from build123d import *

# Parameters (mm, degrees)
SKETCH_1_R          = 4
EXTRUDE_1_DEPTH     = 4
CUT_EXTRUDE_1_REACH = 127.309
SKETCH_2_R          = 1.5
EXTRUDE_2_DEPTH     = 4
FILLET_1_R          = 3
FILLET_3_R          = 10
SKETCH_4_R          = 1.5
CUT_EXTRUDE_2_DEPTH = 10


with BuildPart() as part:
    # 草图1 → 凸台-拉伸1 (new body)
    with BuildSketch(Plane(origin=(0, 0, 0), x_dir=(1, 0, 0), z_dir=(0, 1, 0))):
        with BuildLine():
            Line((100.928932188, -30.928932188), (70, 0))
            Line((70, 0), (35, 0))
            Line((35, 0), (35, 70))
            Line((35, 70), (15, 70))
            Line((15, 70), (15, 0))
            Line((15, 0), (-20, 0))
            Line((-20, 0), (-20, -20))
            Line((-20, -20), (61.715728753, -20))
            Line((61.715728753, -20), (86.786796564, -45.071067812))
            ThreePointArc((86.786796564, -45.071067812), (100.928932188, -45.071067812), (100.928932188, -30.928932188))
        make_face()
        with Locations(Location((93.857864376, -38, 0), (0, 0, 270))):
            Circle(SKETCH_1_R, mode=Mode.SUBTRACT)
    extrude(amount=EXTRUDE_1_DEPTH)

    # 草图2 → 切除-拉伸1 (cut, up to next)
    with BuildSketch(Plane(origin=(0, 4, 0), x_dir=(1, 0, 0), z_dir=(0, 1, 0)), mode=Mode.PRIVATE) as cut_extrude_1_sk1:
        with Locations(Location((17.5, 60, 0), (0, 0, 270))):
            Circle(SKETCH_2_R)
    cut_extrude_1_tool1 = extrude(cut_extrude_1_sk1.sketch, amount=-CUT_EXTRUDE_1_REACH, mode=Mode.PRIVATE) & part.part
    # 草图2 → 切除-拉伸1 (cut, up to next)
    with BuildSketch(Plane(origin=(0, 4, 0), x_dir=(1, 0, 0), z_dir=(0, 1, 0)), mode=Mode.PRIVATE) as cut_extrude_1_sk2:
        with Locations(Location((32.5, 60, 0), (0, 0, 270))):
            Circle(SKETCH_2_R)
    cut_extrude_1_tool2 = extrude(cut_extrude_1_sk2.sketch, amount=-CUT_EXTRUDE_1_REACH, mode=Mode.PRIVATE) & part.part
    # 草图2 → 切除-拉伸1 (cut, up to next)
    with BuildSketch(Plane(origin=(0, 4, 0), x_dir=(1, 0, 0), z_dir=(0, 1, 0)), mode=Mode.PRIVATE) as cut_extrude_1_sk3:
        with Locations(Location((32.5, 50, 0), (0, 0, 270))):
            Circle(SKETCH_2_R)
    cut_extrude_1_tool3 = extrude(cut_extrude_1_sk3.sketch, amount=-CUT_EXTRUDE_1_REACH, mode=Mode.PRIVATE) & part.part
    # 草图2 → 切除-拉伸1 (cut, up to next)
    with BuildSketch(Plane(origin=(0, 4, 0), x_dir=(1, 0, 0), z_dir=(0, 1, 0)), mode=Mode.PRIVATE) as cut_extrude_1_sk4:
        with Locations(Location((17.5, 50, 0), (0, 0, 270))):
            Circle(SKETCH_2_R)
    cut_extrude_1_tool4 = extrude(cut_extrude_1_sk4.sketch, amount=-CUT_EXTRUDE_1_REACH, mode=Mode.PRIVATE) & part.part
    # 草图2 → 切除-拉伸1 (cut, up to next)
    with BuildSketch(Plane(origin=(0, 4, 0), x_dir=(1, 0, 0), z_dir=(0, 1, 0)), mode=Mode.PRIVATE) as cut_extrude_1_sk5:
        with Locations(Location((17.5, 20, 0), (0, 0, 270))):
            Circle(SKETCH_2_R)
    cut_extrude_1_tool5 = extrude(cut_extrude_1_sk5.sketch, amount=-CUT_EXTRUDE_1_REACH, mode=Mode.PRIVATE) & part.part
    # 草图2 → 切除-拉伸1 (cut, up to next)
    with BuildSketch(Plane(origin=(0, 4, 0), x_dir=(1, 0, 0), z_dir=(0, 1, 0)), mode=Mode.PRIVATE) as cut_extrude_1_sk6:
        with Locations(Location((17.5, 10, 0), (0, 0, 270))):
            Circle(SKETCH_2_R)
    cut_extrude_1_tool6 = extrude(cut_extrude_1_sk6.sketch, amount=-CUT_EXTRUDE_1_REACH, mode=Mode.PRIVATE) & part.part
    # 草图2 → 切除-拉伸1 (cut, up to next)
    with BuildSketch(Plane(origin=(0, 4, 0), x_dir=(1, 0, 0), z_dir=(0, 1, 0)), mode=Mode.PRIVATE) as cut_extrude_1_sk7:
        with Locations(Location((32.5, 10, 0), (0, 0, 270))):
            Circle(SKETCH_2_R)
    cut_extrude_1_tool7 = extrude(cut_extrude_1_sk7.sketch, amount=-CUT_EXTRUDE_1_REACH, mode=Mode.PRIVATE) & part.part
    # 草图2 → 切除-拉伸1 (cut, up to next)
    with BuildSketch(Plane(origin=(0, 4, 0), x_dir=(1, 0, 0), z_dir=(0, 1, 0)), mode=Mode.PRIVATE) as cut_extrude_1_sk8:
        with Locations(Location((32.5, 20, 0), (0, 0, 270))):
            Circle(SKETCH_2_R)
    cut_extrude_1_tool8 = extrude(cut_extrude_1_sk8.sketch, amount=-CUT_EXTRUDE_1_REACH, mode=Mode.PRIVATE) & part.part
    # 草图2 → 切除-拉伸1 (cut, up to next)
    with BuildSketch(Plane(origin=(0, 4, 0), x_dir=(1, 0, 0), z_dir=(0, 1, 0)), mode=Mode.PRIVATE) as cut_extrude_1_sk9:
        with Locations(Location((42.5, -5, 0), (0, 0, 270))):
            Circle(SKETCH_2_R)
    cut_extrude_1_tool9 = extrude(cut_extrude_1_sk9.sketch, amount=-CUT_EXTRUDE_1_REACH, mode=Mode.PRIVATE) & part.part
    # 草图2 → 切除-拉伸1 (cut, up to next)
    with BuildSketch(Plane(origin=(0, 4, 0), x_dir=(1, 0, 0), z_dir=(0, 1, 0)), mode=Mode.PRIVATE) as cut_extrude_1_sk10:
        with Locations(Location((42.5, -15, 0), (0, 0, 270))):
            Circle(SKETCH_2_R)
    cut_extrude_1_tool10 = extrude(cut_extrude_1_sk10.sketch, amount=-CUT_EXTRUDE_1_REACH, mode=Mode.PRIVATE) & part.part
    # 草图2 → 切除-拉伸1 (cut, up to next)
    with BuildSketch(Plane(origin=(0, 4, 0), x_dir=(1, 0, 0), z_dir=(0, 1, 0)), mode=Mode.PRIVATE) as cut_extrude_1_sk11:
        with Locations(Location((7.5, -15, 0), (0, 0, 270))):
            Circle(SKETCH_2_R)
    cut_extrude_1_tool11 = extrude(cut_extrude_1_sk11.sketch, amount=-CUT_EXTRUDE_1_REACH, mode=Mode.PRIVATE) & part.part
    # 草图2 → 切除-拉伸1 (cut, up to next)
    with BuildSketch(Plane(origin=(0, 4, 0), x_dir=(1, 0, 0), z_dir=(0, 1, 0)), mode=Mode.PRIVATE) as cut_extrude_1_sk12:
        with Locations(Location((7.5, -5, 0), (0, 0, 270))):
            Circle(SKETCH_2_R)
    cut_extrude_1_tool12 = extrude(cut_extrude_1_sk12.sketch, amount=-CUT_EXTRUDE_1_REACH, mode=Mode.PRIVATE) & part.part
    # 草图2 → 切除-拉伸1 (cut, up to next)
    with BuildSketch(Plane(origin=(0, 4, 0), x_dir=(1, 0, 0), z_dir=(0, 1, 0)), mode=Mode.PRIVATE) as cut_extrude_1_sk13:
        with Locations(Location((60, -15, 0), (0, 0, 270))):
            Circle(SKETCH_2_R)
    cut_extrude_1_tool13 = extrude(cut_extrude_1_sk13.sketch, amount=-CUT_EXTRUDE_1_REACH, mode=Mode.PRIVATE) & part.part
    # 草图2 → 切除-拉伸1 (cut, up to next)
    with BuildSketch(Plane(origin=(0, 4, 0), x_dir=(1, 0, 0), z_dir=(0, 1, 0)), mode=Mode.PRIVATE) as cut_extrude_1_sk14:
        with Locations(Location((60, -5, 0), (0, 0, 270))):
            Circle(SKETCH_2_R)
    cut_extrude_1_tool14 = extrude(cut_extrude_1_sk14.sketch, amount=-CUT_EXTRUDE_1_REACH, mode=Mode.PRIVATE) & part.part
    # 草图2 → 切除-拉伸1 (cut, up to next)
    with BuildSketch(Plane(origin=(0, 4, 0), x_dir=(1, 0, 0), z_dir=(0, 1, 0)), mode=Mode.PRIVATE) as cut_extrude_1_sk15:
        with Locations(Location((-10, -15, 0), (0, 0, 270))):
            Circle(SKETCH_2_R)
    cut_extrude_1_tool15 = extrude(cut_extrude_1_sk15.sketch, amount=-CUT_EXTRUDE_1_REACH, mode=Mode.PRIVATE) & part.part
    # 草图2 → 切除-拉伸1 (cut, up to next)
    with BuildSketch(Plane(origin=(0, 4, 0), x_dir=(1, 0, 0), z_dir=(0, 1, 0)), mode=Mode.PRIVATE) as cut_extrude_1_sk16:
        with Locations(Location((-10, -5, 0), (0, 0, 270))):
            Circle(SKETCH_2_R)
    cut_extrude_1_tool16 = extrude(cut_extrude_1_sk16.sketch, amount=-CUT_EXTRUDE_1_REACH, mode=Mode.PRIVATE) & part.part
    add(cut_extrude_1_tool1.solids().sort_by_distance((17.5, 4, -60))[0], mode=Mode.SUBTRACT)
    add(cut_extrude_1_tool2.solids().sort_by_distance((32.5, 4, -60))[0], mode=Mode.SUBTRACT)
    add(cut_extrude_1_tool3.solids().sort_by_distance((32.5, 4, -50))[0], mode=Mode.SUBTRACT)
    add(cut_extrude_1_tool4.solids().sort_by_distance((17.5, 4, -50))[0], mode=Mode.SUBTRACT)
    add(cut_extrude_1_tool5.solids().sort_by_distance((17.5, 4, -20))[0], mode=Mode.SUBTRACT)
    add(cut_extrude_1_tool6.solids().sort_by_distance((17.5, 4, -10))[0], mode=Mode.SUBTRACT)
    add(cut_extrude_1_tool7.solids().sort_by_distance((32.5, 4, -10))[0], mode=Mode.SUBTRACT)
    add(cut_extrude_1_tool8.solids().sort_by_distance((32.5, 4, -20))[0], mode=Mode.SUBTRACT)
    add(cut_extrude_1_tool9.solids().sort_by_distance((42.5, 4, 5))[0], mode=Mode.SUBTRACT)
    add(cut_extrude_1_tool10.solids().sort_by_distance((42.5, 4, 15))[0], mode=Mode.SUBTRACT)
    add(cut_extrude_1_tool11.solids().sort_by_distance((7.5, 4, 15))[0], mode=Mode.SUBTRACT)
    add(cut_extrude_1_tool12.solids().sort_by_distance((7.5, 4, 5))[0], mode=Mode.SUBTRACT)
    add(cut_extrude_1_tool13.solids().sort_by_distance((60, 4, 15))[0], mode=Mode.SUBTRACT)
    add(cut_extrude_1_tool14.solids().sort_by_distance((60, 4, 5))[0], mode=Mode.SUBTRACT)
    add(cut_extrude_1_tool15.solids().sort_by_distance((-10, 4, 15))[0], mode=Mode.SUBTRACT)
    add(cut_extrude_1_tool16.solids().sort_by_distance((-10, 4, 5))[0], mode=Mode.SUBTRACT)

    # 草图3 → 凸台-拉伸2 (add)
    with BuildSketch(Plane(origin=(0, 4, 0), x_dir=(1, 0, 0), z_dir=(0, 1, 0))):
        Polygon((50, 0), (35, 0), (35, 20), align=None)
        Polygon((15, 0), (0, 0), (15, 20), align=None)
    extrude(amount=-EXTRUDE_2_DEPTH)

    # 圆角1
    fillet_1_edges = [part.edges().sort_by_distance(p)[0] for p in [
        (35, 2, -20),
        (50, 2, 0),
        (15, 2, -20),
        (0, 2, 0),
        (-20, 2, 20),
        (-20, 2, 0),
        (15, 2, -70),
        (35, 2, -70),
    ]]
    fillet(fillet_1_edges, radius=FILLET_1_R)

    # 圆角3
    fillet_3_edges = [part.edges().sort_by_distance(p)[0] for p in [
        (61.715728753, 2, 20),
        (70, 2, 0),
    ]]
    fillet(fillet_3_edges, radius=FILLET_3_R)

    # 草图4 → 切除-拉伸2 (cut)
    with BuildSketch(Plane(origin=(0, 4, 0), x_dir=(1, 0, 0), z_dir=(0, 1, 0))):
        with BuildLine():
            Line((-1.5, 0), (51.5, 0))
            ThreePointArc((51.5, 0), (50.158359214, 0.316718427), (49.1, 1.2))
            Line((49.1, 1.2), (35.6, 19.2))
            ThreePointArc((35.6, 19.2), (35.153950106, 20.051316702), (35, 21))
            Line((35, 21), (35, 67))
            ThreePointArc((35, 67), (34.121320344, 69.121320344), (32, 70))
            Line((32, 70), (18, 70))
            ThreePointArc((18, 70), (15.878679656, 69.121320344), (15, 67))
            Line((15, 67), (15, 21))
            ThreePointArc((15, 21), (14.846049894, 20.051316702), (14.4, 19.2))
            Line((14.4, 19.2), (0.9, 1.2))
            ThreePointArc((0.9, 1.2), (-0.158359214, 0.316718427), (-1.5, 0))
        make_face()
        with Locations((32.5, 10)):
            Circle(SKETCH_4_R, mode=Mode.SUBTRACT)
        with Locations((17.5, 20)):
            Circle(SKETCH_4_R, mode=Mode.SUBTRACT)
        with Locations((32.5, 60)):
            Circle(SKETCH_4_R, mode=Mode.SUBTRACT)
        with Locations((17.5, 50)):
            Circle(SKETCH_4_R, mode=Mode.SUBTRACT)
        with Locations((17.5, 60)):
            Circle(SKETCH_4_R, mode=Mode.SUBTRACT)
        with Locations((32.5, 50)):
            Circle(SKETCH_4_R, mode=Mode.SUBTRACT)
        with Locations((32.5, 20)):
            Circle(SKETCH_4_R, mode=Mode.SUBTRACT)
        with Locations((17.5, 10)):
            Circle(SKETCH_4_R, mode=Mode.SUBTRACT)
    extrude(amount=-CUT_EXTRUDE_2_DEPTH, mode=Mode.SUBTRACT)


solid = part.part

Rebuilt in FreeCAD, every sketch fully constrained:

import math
import FreeCAD as App
import Part
import Sketcher

V = App.Vector
Q = App.Units.Quantity


def edges_at(feature, points):
    """Names of the edges that pass closest to the given points."""
    edges = feature.Shape.Edges
    near = lambda p: min(range(len(edges)), key=lambda i: edges[i].distToShape(Part.Vertex(*p))[0])
    return sorted({f"Edge{near(p) + 1}" for p in points})

doc = App.newDocument("Part")
body = doc.addObject("PartDesign::Body", "Body")

# Sketch on XZ plane
sketch1 = doc.addObject("Sketcher::SketchObject", "Sketch")
body.addObject(sketch1)
sketch1.AttachmentSupport = (doc.XZ_Plane, [""])
sketch1.MapMode = "FlatFace"
sketch1.addGeometry([
    Part.LineSegment(V(100.9, 30.9, 0), V(70, 0, 0)),  # 0
    Part.LineSegment(V(70, 0, 0), V(35, 0, 0)),  # 1
    Part.LineSegment(V(35, 0, 0), V(35, -70, 0)),  # 2
    Part.LineSegment(V(35, -70, 0), V(15, -70, 0)),  # 3
    Part.LineSegment(V(15, -70, 0), V(15, 0, 0)),  # 4
    Part.LineSegment(V(15, 0, 0), V(-20, 0, 0)),  # 5
    Part.LineSegment(V(-20, 0, 0), V(-20, 20, 0)),  # 6
    Part.LineSegment(V(-20, 20, 0), V(61.7, 20, 0)),  # 7
    Part.LineSegment(V(61.7, 20, 0), V(86.8, 45.1, 0)),  # 8
    Part.ArcOfCircle(Part.Circle(V(93.9, 38, 0), V(0, 0, 1), 10), math.radians(-45), math.radians(135)),  # 9
    Part.Circle(V(93.9, 38, 0), V(0, 0, 1), 4),  # 10
], False)
sketch1.addConstraint([
    Sketcher.Constraint("Coincident", 0, 2, 1, 1),
    Sketcher.Constraint("Coincident", 1, 2, 2, 1),
    Sketcher.Constraint("Coincident", 2, 2, 3, 1),
    Sketcher.Constraint("Coincident", 3, 2, 4, 1),
    Sketcher.Constraint("Coincident", 4, 2, 5, 1),
    Sketcher.Constraint("Coincident", 5, 2, 6, 1),
    Sketcher.Constraint("Coincident", 6, 2, 7, 1),
    Sketcher.Constraint("Coincident", 7, 2, 8, 1),
    Sketcher.Constraint("Tangent", 8, 2, 9, 2),
    Sketcher.Constraint("Tangent", 9, 1, 0, 1),
    Sketcher.Constraint("Horizontal", 1),
    Sketcher.Constraint("Vertical", 2),
    Sketcher.Constraint("Horizontal", 3),
    Sketcher.Constraint("Vertical", 4),
    Sketcher.Constraint("Horizontal", 5),
    Sketcher.Constraint("Vertical", 6),
    Sketcher.Constraint("Horizontal", 7),
    Sketcher.Constraint("Coincident", 10, 3, 9, 3),
    Sketcher.Constraint("PointOnObject", 0, 2, -1),
    Sketcher.Constraint("PointOnObject", 4, 2, -1),
    Sketcher.Constraint("Parallel", 0, 8),
    Sketcher.Constraint("Equal", 1, 5),
    Sketcher.Constraint("Equal", 3, 6),
    Sketcher.Constraint("Diameter", 10, 8.0),
    Sketcher.Constraint("Radius", 9, 10.0),
    Sketcher.Constraint("DistanceX", 1, 2, 1, 1, 35.0),
    Sketcher.Constraint("DistanceX", 3, 2, 3, 1, 20.0),
    Sketcher.Constraint("DistanceY", 2, 2, 2, 1, 70.0),
    Sketcher.Constraint("Angle", 0, Q("-135 deg")),
    Sketcher.Constraint("DistanceY", -1, 1, 9, 3, 38.0),
    Sketcher.Constraint("DistanceX", -1, 1, 0, 2, 70.0),
])
pad1 = doc.addObject("PartDesign::Pad", "Pad")
body.addObject(pad1)
pad1.Profile = sketch1
pad1.Length = 4
pad1.Reversed = True

# Sketch on XZ plane
sketch2 = doc.addObject("Sketcher::SketchObject", "Sketch001")
body.addObject(sketch2)
sketch2.AttachmentSupport = (doc.XZ_Plane, [""])
sketch2.MapMode = "FlatFace"
sketch2.AttachmentOffset = App.Placement(V(0, 0, -4), App.Rotation())
sketch2.addGeometry(Part.Circle(V(17.5, -60, 0), V(0, 0, 1), 1.5), False)
sketch2.addConstraint([
    Sketcher.Constraint("Diameter", 0, 3.0),
    Sketcher.Constraint("DistanceY", 0, 3, -1, 1, 60.0),
    Sketcher.Constraint("DistanceX", -1, 1, 0, 3, 17.5),
])
pocket1 = doc.addObject("PartDesign::Pocket", "Pocket")
body.addObject(pocket1)
pocket1.Profile = sketch2
pocket1.Type = "UpToFirst"
pocket1.Reversed = True

# Sketch on XZ plane
sketch3 = doc.addObject("Sketcher::SketchObject", "Sketch002")
body.addObject(sketch3)
sketch3.AttachmentSupport = (doc.XZ_Plane, [""])
sketch3.MapMode = "FlatFace"
sketch3.AttachmentOffset = App.Placement(V(0, 0, -4), App.Rotation())
sketch3.addGeometry(Part.Circle(V(32.5, -60, 0), V(0, 0, 1), 1.5), False)
sketch3.addConstraint([
    Sketcher.Constraint("Diameter", 0, 3.0),
    Sketcher.Constraint("DistanceY", 0, 3, -1, 1, 60.0),
    Sketcher.Constraint("DistanceX", -1, 1, 0, 3, 32.5),
])
pocket2 = doc.addObject("PartDesign::Pocket", "Pocket001")
body.addObject(pocket2)
pocket2.Profile = sketch3
pocket2.Type = "UpToFirst"
pocket2.Reversed = True

# Sketch on XZ plane
sketch4 = doc.addObject("Sketcher::SketchObject", "Sketch003")
body.addObject(sketch4)
sketch4.AttachmentSupport = (doc.XZ_Plane, [""])
sketch4.MapMode = "FlatFace"
sketch4.AttachmentOffset = App.Placement(V(0, 0, -4), App.Rotation())
sketch4.addGeometry(Part.Circle(V(32.5, -50, 0), V(0, 0, 1), 1.5), False)
sketch4.addConstraint([
    Sketcher.Constraint("Diameter", 0, 3.0),
    Sketcher.Constraint("DistanceY", 0, 3, -1, 1, 50.0),
    Sketcher.Constraint("DistanceX", -1, 1, 0, 3, 32.5),
])
pocket3 = doc.addObject("PartDesign::Pocket", "Pocket002")
body.addObject(pocket3)
pocket3.Profile = sketch4
pocket3.Type = "UpToFirst"
pocket3.Reversed = True

# Sketch on XZ plane
sketch5 = doc.addObject("Sketcher::SketchObject", "Sketch004")
body.addObject(sketch5)
sketch5.AttachmentSupport = (doc.XZ_Plane, [""])
sketch5.MapMode = "FlatFace"
sketch5.AttachmentOffset = App.Placement(V(0, 0, -4), App.Rotation())
sketch5.addGeometry(Part.Circle(V(17.5, -50, 0), V(0, 0, 1), 1.5), False)
sketch5.addConstraint([
    Sketcher.Constraint("Diameter", 0, 3.0),
    Sketcher.Constraint("DistanceY", 0, 3, -1, 1, 50.0),
    Sketcher.Constraint("DistanceX", -1, 1, 0, 3, 17.5),
])
pocket4 = doc.addObject("PartDesign::Pocket", "Pocket003")
body.addObject(pocket4)
pocket4.Profile = sketch5
pocket4.Type = "UpToFirst"
pocket4.Reversed = True

# Sketch on XZ plane
sketch6 = doc.addObject("Sketcher::SketchObject", "Sketch005")
body.addObject(sketch6)
sketch6.AttachmentSupport = (doc.XZ_Plane, [""])
sketch6.MapMode = "FlatFace"
sketch6.AttachmentOffset = App.Placement(V(0, 0, -4), App.Rotation())
sketch6.addGeometry(Part.Circle(V(17.5, -20, 0), V(0, 0, 1), 1.5), False)
sketch6.addConstraint([
    Sketcher.Constraint("Diameter", 0, 3.0),
    Sketcher.Constraint("DistanceY", 0, 3, -1, 1, 20.0),
    Sketcher.Constraint("DistanceX", -1, 1, 0, 3, 17.5),
])
pocket5 = doc.addObject("PartDesign::Pocket", "Pocket004")
body.addObject(pocket5)
pocket5.Profile = sketch6
pocket5.Type = "UpToFirst"
pocket5.Reversed = True

# Sketch on XZ plane
sketch7 = doc.addObject("Sketcher::SketchObject", "Sketch006")
body.addObject(sketch7)
sketch7.AttachmentSupport = (doc.XZ_Plane, [""])
sketch7.MapMode = "FlatFace"
sketch7.AttachmentOffset = App.Placement(V(0, 0, -4), App.Rotation())
sketch7.addGeometry(Part.Circle(V(17.5, -10, 0), V(0, 0, 1), 1.5), False)
sketch7.addConstraint([
    Sketcher.Constraint("Diameter", 0, 3.0),
    Sketcher.Constraint("DistanceY", 0, 3, -1, 1, 10.0),
    Sketcher.Constraint("DistanceX", -1, 1, 0, 3, 17.5),
])
pocket6 = doc.addObject("PartDesign::Pocket", "Pocket005")
body.addObject(pocket6)
pocket6.Profile = sketch7
pocket6.Type = "UpToFirst"
pocket6.Reversed = True

# Sketch on XZ plane
sketch8 = doc.addObject("Sketcher::SketchObject", "Sketch007")
body.addObject(sketch8)
sketch8.AttachmentSupport = (doc.XZ_Plane, [""])
sketch8.MapMode = "FlatFace"
sketch8.AttachmentOffset = App.Placement(V(0, 0, -4), App.Rotation())
sketch8.addGeometry(Part.Circle(V(32.5, -10, 0), V(0, 0, 1), 1.5), False)
sketch8.addConstraint([
    Sketcher.Constraint("Diameter", 0, 3.0),
    Sketcher.Constraint("DistanceY", 0, 3, -1, 1, 10.0),
    Sketcher.Constraint("DistanceX", -1, 1, 0, 3, 32.5),
])
pocket7 = doc.addObject("PartDesign::Pocket", "Pocket006")
body.addObject(pocket7)
pocket7.Profile = sketch8
pocket7.Type = "UpToFirst"
pocket7.Reversed = True

# Sketch on XZ plane
sketch9 = doc.addObject("Sketcher::SketchObject", "Sketch008")
body.addObject(sketch9)
sketch9.AttachmentSupport = (doc.XZ_Plane, [""])
sketch9.MapMode = "FlatFace"
sketch9.AttachmentOffset = App.Placement(V(0, 0, -4), App.Rotation())
sketch9.addGeometry(Part.Circle(V(32.5, -20, 0), V(0, 0, 1), 1.5), False)
sketch9.addConstraint([
    Sketcher.Constraint("Diameter", 0, 3.0),
    Sketcher.Constraint("DistanceY", 0, 3, -1, 1, 20.0),
    Sketcher.Constraint("DistanceX", -1, 1, 0, 3, 32.5),
])
pocket8 = doc.addObject("PartDesign::Pocket", "Pocket007")
body.addObject(pocket8)
pocket8.Profile = sketch9
pocket8.Type = "UpToFirst"
pocket8.Reversed = True

# Sketch on XZ plane
sketch10 = doc.addObject("Sketcher::SketchObject", "Sketch009")
body.addObject(sketch10)
sketch10.AttachmentSupport = (doc.XZ_Plane, [""])
sketch10.MapMode = "FlatFace"
sketch10.AttachmentOffset = App.Placement(V(0, 0, -4), App.Rotation())
sketch10.addGeometry(Part.Circle(V(42.5, 5, 0), V(0, 0, 1), 1.5), False)
sketch10.addConstraint([
    Sketcher.Constraint("Diameter", 0, 3.0),
    Sketcher.Constraint("DistanceY", -1, 1, 0, 3, 5.0),
    Sketcher.Constraint("DistanceX", -1, 1, 0, 3, 42.5),
])
pocket9 = doc.addObject("PartDesign::Pocket", "Pocket008")
body.addObject(pocket9)
pocket9.Profile = sketch10
pocket9.Type = "UpToFirst"
pocket9.Reversed = True

# Sketch on XZ plane
sketch11 = doc.addObject("Sketcher::SketchObject", "Sketch010")
body.addObject(sketch11)
sketch11.AttachmentSupport = (doc.XZ_Plane, [""])
sketch11.MapMode = "FlatFace"
sketch11.AttachmentOffset = App.Placement(V(0, 0, -4), App.Rotation())
sketch11.addGeometry(Part.Circle(V(42.5, 15, 0), V(0, 0, 1), 1.5), False)
sketch11.addConstraint([
    Sketcher.Constraint("Diameter", 0, 3.0),
    Sketcher.Constraint("DistanceY", -1, 1, 0, 3, 15.0),
    Sketcher.Constraint("DistanceX", -1, 1, 0, 3, 42.5),
])
pocket10 = doc.addObject("PartDesign::Pocket", "Pocket009")
body.addObject(pocket10)
pocket10.Profile = sketch11
pocket10.Type = "UpToFirst"
pocket10.Reversed = True

# Sketch on XZ plane
sketch12 = doc.addObject("Sketcher::SketchObject", "Sketch011")
body.addObject(sketch12)
sketch12.AttachmentSupport = (doc.XZ_Plane, [""])
sketch12.MapMode = "FlatFace"
sketch12.AttachmentOffset = App.Placement(V(0, 0, -4), App.Rotation())
sketch12.addGeometry(Part.Circle(V(7.5, 15, 0), V(0, 0, 1), 1.5), False)
sketch12.addConstraint([
    Sketcher.Constraint("Diameter", 0, 3.0),
    Sketcher.Constraint("DistanceY", -1, 1, 0, 3, 15.0),
    Sketcher.Constraint("DistanceX", -1, 1, 0, 3, 7.5),
])
pocket11 = doc.addObject("PartDesign::Pocket", "Pocket010")
body.addObject(pocket11)
pocket11.Profile = sketch12
pocket11.Type = "UpToFirst"
pocket11.Reversed = True

# Sketch on XZ plane
sketch13 = doc.addObject("Sketcher::SketchObject", "Sketch012")
body.addObject(sketch13)
sketch13.AttachmentSupport = (doc.XZ_Plane, [""])
sketch13.MapMode = "FlatFace"
sketch13.AttachmentOffset = App.Placement(V(0, 0, -4), App.Rotation())
sketch13.addGeometry(Part.Circle(V(7.5, 5, 0), V(0, 0, 1), 1.5), False)
sketch13.addConstraint([
    Sketcher.Constraint("Diameter", 0, 3.0),
    Sketcher.Constraint("DistanceY", -1, 1, 0, 3, 5.0),
    Sketcher.Constraint("DistanceX", -1, 1, 0, 3, 7.5),
])
pocket12 = doc.addObject("PartDesign::Pocket", "Pocket011")
body.addObject(pocket12)
pocket12.Profile = sketch13
pocket12.Type = "UpToFirst"
pocket12.Reversed = True

# Sketch on XZ plane
sketch14 = doc.addObject("Sketcher::SketchObject", "Sketch013")
body.addObject(sketch14)
sketch14.AttachmentSupport = (doc.XZ_Plane, [""])
sketch14.MapMode = "FlatFace"
sketch14.AttachmentOffset = App.Placement(V(0, 0, -4), App.Rotation())
sketch14.addGeometry(Part.Circle(V(60, 15, 0), V(0, 0, 1), 1.5), False)
sketch14.addConstraint([
    Sketcher.Constraint("Diameter", 0, 3.0),
    Sketcher.Constraint("DistanceX", -1, 1, 0, 3, 60.0),
    Sketcher.Constraint("DistanceY", -1, 1, 0, 3, 15.0),
])
pocket13 = doc.addObject("PartDesign::Pocket", "Pocket012")
body.addObject(pocket13)
pocket13.Profile = sketch14
pocket13.Type = "UpToFirst"
pocket13.Reversed = True

# Sketch on XZ plane
sketch15 = doc.addObject("Sketcher::SketchObject", "Sketch014")
body.addObject(sketch15)
sketch15.AttachmentSupport = (doc.XZ_Plane, [""])
sketch15.MapMode = "FlatFace"
sketch15.AttachmentOffset = App.Placement(V(0, 0, -4), App.Rotation())
sketch15.addGeometry(Part.Circle(V(60, 5, 0), V(0, 0, 1), 1.5), False)
sketch15.addConstraint([
    Sketcher.Constraint("Diameter", 0, 3.0),
    Sketcher.Constraint("DistanceX", -1, 1, 0, 3, 60.0),
    Sketcher.Constraint("DistanceY", -1, 1, 0, 3, 5.0),
])
pocket14 = doc.addObject("PartDesign::Pocket", "Pocket013")
body.addObject(pocket14)
pocket14.Profile = sketch15
pocket14.Type = "UpToFirst"
pocket14.Reversed = True

# Sketch on XZ plane
sketch16 = doc.addObject("Sketcher::SketchObject", "Sketch015")
body.addObject(sketch16)
sketch16.AttachmentSupport = (doc.XZ_Plane, [""])
sketch16.MapMode = "FlatFace"
sketch16.AttachmentOffset = App.Placement(V(0, 0, -4), App.Rotation())
sketch16.addGeometry(Part.Circle(V(-10, 15, 0), V(0, 0, 1), 1.5), False)
sketch16.addConstraint([
    Sketcher.Constraint("Diameter", 0, 3.0),
    Sketcher.Constraint("DistanceX", 0, 3, -1, 1, 10.0),
    Sketcher.Constraint("DistanceY", -1, 1, 0, 3, 15.0),
])
pocket15 = doc.addObject("PartDesign::Pocket", "Pocket014")
body.addObject(pocket15)
pocket15.Profile = sketch16
pocket15.Type = "UpToFirst"
pocket15.Reversed = True

# Sketch on XZ plane
sketch17 = doc.addObject("Sketcher::SketchObject", "Sketch016")
body.addObject(sketch17)
sketch17.AttachmentSupport = (doc.XZ_Plane, [""])
sketch17.MapMode = "FlatFace"
sketch17.AttachmentOffset = App.Placement(V(0, 0, -4), App.Rotation())
sketch17.addGeometry(Part.Circle(V(-10, 5, 0), V(0, 0, 1), 1.5), False)
sketch17.addConstraint([
    Sketcher.Constraint("Diameter", 0, 3.0),
    Sketcher.Constraint("DistanceX", 0, 3, -1, 1, 10.0),
    Sketcher.Constraint("DistanceY", -1, 1, 0, 3, 5.0),
])
pocket16 = doc.addObject("PartDesign::Pocket", "Pocket015")
body.addObject(pocket16)
pocket16.Profile = sketch17
pocket16.Type = "UpToFirst"
pocket16.Reversed = True

# Sketch on XZ plane
sketch18 = doc.addObject("Sketcher::SketchObject", "Sketch017")
body.addObject(sketch18)
sketch18.AttachmentSupport = (doc.XZ_Plane, [""])
sketch18.MapMode = "FlatFace"
sketch18.AttachmentOffset = App.Placement(V(0, 0, -4), App.Rotation())
sketch18.addGeometry([
    Part.LineSegment(V(35, 0, 0), V(50, 0, 0)),  # 0
    Part.LineSegment(V(50, 0, 0), V(35, -20, 0)),  # 1
    Part.LineSegment(V(35, -20, 0), V(35, 0, 0)),  # 2
    Part.LineSegment(V(0, 0, 0), V(15, 0, 0)),  # 3
    Part.LineSegment(V(15, 0, 0), V(15, -20, 0)),  # 4
    Part.LineSegment(V(15, -20, 0), V(0, 0, 0)),  # 5
], False)
sketch18.addConstraint([
    Sketcher.Constraint("Coincident", 0, 2, 1, 1),
    Sketcher.Constraint("Coincident", 1, 2, 2, 1),
    Sketcher.Constraint("Coincident", 2, 2, 0, 1),
    Sketcher.Constraint("Coincident", 3, 2, 4, 1),
    Sketcher.Constraint("Coincident", 4, 2, 5, 1),
    Sketcher.Constraint("Coincident", 5, 2, 3, 1),
    Sketcher.Constraint("Horizontal", 0),
    Sketcher.Constraint("Vertical", 2),
    Sketcher.Constraint("Horizontal", 3),
    Sketcher.Constraint("Vertical", 4),
    Sketcher.Constraint("Coincident", 5, 2, -1, 1),
    Sketcher.Constraint("PointOnObject", 0, 2, -1),
    Sketcher.Constraint("Horizontal", 1, 2, 4, 2),
    Sketcher.Constraint("Equal", 0, 3),
    Sketcher.Constraint("DistanceX", 0, 1, 0, 2, 15.0),
    Sketcher.Constraint("DistanceY", 2, 1, 2, 2, 20.0),
    Sketcher.Constraint("DistanceX", -1, 1, 0, 2, 50.0),
])
pad2 = doc.addObject("PartDesign::Pad", "Pad001")
body.addObject(pad2)
pad2.Profile = sketch18
pad2.Length = 4
doc.recompute()

fillet = doc.addObject("PartDesign::Fillet", "Fillet")
body.addObject(fillet)
fillet.Base = (pad2, edges_at(pad2, [
    (35, 2, -20),
    (50, 2, 0),
    (15, 2, -20),
    (0, 2, 0),
    (-20, 2, 20),
    (-20, 2, 0),
    (15, 2, -70),
    (35, 2, -70),
]))
fillet.Radius = 3
doc.recompute()

fillet2 = doc.addObject("PartDesign::Fillet", "Fillet001")
body.addObject(fillet2)
fillet2.Base = (fillet, edges_at(fillet, [(61.716, 2, 20), (70, 2, 0)]))
fillet2.Radius = 10

# Sketch on XZ plane
sketch19 = doc.addObject("Sketcher::SketchObject", "Sketch018")
body.addObject(sketch19)
sketch19.AttachmentSupport = (doc.XZ_Plane, [""])
sketch19.MapMode = "FlatFace"
sketch19.AttachmentOffset = App.Placement(V(0, 0, -4), App.Rotation())
sketch19.addGeometry([
    Part.LineSegment(V(-1.5, 0, 0), V(51.5, 0, 0)),  # 0
    Part.ArcOfCircle(Part.Circle(V(51.5, -3, 0), V(0, 0, 1), 3), math.radians(90), math.radians(143)),  # 1
    Part.LineSegment(V(49.1, -1.2, 0), V(35.6, -19.2, 0)),  # 2
    Part.ArcOfCircle(Part.Circle(V(38, -21, 0), V(0, 0, 1), 3), math.radians(143), math.radians(180)),  # 3
    Part.LineSegment(V(35, -21, 0), V(35, -67, 0)),  # 4
    Part.ArcOfCircle(Part.Circle(V(32, -67, 0), V(0, 0, 1), 3), math.radians(-90), math.radians(0)),  # 5
    Part.LineSegment(V(32, -70, 0), V(18, -70, 0)),  # 6
    Part.ArcOfCircle(Part.Circle(V(18, -67, 0), V(0, 0, 1), 3), math.radians(180), math.radians(270)),  # 7
    Part.LineSegment(V(15, -67, 0), V(15, -21, 0)),  # 8
    Part.ArcOfCircle(Part.Circle(V(12, -21, 0), V(0, 0, 1), 3), math.radians(0), math.radians(37)),  # 9
    Part.LineSegment(V(14.4, -19.2, 0), V(0.9, -1.2, 0)),  # 10
    Part.ArcOfCircle(Part.Circle(V(-1.5, -3, 0), V(0, 0, 1), 3), math.radians(37), math.radians(90)),  # 11
    Part.Circle(V(17.5, -10, 0), V(0, 0, 1), 1.5),  # 12
    Part.Circle(V(17.5, -20, 0), V(0, 0, 1), 1.5),  # 13
    Part.Circle(V(32.5, -10, 0), V(0, 0, 1), 1.5),  # 14
    Part.Circle(V(32.5, -20, 0), V(0, 0, 1), 1.5),  # 15
    Part.Circle(V(17.5, -50, 0), V(0, 0, 1), 1.5),  # 16
    Part.Circle(V(17.5, -60, 0), V(0, 0, 1), 1.5),  # 17
    Part.Circle(V(32.5, -50, 0), V(0, 0, 1), 1.5),  # 18
    Part.Circle(V(32.5, -60, 0), V(0, 0, 1), 1.5),  # 19
], False)
sketch19.addConstraint([
    Sketcher.Constraint("Tangent", 0, 2, 1, 1),
    Sketcher.Constraint("Tangent", 1, 2, 2, 1),
    Sketcher.Constraint("Tangent", 2, 2, 3, 1),
    Sketcher.Constraint("Tangent", 3, 2, 4, 1),
    Sketcher.Constraint("Tangent", 4, 2, 5, 2),
    Sketcher.Constraint("Tangent", 5, 1, 6, 1),
    Sketcher.Constraint("Tangent", 6, 2, 7, 2),
    Sketcher.Constraint("Tangent", 7, 1, 8, 1),
    Sketcher.Constraint("Tangent", 8, 2, 9, 1),
    Sketcher.Constraint("Tangent", 9, 2, 10, 1),
    Sketcher.Constraint("Tangent", 10, 2, 11, 1),
    Sketcher.Constraint("Tangent", 11, 2, 0, 1),
    Sketcher.Constraint("Horizontal", 0),
    Sketcher.Constraint("Vertical", 4),
    Sketcher.Constraint("Horizontal", 6),
    Sketcher.Constraint("Vertical", 8),
    Sketcher.Constraint("Equal", 1, 3),
    Sketcher.Constraint("Equal", 3, 5),
    Sketcher.Constraint("Equal", 5, 7),
    Sketcher.Constraint("Equal", 7, 9),
    Sketcher.Constraint("Equal", 9, 11),
    Sketcher.Constraint("Equal", 12, 13),
    Sketcher.Constraint("Equal", 13, 14),
    Sketcher.Constraint("Equal", 14, 15),
    Sketcher.Constraint("Equal", 15, 16),
    Sketcher.Constraint("Equal", 16, 17),
    Sketcher.Constraint("Equal", 17, 18),
    Sketcher.Constraint("Equal", 18, 19),
    Sketcher.Constraint("PointOnObject", 0, 2, -1),
    Sketcher.Constraint("Horizontal", 3, 3, 9, 3),
    Sketcher.Constraint("Horizontal", 12, 3, 14, 3),
    Sketcher.Constraint("Horizontal", 13, 3, 15, 3),
    Sketcher.Constraint("Horizontal", 16, 3, 18, 3),
    Sketcher.Constraint("Horizontal", 17, 3, 19, 3),
    Sketcher.Constraint("Horizontal", 2, 2, 9, 2),
    Sketcher.Constraint("Vertical", 12, 3, 13, 3),
    Sketcher.Constraint("Vertical", 14, 3, 15, 3),
    Sketcher.Constraint("Vertical", 13, 3, 16, 3),
    Sketcher.Constraint("Vertical", 16, 3, 17, 3),
    Sketcher.Constraint("Vertical", 15, 3, 18, 3),
    Sketcher.Constraint("Vertical", 18, 3, 19, 3),
    Sketcher.Constraint("Diameter", 12, 3.0),
    Sketcher.Constraint("Radius", 1, 3.0),
    Sketcher.Constraint("DistanceX", 0, 1, 0, 2, 53.0),
    Sketcher.Constraint("DistanceX", 6, 2, 6, 1, 14.0),
    Sketcher.Constraint("DistanceY", 4, 2, 4, 1, 46.0),
    Sketcher.Constraint("DistanceX", -1, 1, 3, 3, 38.0),
    Sketcher.Constraint("DistanceY", 3, 3, -1, 1, 21.0),
    Sketcher.Constraint("DistanceY", 12, 3, -1, 1, 10.0),
    Sketcher.Constraint("DistanceY", 13, 3, -1, 1, 20.0),
    Sketcher.Constraint("DistanceY", 16, 3, -1, 1, 50.0),
    Sketcher.Constraint("DistanceY", 17, 3, -1, 1, 60.0),
    Sketcher.Constraint("DistanceX", 11, 3, 12, 3, 19.0),
    Sketcher.Constraint("DistanceX", 12, 3, 14, 3, 15.0),
])
pocket17 = doc.addObject("PartDesign::Pocket", "Pocket016")
body.addObject(pocket17)
pocket17.Profile = sketch19
pocket17.Length = 10
pocket17.Reversed = True

doc.recompute()
